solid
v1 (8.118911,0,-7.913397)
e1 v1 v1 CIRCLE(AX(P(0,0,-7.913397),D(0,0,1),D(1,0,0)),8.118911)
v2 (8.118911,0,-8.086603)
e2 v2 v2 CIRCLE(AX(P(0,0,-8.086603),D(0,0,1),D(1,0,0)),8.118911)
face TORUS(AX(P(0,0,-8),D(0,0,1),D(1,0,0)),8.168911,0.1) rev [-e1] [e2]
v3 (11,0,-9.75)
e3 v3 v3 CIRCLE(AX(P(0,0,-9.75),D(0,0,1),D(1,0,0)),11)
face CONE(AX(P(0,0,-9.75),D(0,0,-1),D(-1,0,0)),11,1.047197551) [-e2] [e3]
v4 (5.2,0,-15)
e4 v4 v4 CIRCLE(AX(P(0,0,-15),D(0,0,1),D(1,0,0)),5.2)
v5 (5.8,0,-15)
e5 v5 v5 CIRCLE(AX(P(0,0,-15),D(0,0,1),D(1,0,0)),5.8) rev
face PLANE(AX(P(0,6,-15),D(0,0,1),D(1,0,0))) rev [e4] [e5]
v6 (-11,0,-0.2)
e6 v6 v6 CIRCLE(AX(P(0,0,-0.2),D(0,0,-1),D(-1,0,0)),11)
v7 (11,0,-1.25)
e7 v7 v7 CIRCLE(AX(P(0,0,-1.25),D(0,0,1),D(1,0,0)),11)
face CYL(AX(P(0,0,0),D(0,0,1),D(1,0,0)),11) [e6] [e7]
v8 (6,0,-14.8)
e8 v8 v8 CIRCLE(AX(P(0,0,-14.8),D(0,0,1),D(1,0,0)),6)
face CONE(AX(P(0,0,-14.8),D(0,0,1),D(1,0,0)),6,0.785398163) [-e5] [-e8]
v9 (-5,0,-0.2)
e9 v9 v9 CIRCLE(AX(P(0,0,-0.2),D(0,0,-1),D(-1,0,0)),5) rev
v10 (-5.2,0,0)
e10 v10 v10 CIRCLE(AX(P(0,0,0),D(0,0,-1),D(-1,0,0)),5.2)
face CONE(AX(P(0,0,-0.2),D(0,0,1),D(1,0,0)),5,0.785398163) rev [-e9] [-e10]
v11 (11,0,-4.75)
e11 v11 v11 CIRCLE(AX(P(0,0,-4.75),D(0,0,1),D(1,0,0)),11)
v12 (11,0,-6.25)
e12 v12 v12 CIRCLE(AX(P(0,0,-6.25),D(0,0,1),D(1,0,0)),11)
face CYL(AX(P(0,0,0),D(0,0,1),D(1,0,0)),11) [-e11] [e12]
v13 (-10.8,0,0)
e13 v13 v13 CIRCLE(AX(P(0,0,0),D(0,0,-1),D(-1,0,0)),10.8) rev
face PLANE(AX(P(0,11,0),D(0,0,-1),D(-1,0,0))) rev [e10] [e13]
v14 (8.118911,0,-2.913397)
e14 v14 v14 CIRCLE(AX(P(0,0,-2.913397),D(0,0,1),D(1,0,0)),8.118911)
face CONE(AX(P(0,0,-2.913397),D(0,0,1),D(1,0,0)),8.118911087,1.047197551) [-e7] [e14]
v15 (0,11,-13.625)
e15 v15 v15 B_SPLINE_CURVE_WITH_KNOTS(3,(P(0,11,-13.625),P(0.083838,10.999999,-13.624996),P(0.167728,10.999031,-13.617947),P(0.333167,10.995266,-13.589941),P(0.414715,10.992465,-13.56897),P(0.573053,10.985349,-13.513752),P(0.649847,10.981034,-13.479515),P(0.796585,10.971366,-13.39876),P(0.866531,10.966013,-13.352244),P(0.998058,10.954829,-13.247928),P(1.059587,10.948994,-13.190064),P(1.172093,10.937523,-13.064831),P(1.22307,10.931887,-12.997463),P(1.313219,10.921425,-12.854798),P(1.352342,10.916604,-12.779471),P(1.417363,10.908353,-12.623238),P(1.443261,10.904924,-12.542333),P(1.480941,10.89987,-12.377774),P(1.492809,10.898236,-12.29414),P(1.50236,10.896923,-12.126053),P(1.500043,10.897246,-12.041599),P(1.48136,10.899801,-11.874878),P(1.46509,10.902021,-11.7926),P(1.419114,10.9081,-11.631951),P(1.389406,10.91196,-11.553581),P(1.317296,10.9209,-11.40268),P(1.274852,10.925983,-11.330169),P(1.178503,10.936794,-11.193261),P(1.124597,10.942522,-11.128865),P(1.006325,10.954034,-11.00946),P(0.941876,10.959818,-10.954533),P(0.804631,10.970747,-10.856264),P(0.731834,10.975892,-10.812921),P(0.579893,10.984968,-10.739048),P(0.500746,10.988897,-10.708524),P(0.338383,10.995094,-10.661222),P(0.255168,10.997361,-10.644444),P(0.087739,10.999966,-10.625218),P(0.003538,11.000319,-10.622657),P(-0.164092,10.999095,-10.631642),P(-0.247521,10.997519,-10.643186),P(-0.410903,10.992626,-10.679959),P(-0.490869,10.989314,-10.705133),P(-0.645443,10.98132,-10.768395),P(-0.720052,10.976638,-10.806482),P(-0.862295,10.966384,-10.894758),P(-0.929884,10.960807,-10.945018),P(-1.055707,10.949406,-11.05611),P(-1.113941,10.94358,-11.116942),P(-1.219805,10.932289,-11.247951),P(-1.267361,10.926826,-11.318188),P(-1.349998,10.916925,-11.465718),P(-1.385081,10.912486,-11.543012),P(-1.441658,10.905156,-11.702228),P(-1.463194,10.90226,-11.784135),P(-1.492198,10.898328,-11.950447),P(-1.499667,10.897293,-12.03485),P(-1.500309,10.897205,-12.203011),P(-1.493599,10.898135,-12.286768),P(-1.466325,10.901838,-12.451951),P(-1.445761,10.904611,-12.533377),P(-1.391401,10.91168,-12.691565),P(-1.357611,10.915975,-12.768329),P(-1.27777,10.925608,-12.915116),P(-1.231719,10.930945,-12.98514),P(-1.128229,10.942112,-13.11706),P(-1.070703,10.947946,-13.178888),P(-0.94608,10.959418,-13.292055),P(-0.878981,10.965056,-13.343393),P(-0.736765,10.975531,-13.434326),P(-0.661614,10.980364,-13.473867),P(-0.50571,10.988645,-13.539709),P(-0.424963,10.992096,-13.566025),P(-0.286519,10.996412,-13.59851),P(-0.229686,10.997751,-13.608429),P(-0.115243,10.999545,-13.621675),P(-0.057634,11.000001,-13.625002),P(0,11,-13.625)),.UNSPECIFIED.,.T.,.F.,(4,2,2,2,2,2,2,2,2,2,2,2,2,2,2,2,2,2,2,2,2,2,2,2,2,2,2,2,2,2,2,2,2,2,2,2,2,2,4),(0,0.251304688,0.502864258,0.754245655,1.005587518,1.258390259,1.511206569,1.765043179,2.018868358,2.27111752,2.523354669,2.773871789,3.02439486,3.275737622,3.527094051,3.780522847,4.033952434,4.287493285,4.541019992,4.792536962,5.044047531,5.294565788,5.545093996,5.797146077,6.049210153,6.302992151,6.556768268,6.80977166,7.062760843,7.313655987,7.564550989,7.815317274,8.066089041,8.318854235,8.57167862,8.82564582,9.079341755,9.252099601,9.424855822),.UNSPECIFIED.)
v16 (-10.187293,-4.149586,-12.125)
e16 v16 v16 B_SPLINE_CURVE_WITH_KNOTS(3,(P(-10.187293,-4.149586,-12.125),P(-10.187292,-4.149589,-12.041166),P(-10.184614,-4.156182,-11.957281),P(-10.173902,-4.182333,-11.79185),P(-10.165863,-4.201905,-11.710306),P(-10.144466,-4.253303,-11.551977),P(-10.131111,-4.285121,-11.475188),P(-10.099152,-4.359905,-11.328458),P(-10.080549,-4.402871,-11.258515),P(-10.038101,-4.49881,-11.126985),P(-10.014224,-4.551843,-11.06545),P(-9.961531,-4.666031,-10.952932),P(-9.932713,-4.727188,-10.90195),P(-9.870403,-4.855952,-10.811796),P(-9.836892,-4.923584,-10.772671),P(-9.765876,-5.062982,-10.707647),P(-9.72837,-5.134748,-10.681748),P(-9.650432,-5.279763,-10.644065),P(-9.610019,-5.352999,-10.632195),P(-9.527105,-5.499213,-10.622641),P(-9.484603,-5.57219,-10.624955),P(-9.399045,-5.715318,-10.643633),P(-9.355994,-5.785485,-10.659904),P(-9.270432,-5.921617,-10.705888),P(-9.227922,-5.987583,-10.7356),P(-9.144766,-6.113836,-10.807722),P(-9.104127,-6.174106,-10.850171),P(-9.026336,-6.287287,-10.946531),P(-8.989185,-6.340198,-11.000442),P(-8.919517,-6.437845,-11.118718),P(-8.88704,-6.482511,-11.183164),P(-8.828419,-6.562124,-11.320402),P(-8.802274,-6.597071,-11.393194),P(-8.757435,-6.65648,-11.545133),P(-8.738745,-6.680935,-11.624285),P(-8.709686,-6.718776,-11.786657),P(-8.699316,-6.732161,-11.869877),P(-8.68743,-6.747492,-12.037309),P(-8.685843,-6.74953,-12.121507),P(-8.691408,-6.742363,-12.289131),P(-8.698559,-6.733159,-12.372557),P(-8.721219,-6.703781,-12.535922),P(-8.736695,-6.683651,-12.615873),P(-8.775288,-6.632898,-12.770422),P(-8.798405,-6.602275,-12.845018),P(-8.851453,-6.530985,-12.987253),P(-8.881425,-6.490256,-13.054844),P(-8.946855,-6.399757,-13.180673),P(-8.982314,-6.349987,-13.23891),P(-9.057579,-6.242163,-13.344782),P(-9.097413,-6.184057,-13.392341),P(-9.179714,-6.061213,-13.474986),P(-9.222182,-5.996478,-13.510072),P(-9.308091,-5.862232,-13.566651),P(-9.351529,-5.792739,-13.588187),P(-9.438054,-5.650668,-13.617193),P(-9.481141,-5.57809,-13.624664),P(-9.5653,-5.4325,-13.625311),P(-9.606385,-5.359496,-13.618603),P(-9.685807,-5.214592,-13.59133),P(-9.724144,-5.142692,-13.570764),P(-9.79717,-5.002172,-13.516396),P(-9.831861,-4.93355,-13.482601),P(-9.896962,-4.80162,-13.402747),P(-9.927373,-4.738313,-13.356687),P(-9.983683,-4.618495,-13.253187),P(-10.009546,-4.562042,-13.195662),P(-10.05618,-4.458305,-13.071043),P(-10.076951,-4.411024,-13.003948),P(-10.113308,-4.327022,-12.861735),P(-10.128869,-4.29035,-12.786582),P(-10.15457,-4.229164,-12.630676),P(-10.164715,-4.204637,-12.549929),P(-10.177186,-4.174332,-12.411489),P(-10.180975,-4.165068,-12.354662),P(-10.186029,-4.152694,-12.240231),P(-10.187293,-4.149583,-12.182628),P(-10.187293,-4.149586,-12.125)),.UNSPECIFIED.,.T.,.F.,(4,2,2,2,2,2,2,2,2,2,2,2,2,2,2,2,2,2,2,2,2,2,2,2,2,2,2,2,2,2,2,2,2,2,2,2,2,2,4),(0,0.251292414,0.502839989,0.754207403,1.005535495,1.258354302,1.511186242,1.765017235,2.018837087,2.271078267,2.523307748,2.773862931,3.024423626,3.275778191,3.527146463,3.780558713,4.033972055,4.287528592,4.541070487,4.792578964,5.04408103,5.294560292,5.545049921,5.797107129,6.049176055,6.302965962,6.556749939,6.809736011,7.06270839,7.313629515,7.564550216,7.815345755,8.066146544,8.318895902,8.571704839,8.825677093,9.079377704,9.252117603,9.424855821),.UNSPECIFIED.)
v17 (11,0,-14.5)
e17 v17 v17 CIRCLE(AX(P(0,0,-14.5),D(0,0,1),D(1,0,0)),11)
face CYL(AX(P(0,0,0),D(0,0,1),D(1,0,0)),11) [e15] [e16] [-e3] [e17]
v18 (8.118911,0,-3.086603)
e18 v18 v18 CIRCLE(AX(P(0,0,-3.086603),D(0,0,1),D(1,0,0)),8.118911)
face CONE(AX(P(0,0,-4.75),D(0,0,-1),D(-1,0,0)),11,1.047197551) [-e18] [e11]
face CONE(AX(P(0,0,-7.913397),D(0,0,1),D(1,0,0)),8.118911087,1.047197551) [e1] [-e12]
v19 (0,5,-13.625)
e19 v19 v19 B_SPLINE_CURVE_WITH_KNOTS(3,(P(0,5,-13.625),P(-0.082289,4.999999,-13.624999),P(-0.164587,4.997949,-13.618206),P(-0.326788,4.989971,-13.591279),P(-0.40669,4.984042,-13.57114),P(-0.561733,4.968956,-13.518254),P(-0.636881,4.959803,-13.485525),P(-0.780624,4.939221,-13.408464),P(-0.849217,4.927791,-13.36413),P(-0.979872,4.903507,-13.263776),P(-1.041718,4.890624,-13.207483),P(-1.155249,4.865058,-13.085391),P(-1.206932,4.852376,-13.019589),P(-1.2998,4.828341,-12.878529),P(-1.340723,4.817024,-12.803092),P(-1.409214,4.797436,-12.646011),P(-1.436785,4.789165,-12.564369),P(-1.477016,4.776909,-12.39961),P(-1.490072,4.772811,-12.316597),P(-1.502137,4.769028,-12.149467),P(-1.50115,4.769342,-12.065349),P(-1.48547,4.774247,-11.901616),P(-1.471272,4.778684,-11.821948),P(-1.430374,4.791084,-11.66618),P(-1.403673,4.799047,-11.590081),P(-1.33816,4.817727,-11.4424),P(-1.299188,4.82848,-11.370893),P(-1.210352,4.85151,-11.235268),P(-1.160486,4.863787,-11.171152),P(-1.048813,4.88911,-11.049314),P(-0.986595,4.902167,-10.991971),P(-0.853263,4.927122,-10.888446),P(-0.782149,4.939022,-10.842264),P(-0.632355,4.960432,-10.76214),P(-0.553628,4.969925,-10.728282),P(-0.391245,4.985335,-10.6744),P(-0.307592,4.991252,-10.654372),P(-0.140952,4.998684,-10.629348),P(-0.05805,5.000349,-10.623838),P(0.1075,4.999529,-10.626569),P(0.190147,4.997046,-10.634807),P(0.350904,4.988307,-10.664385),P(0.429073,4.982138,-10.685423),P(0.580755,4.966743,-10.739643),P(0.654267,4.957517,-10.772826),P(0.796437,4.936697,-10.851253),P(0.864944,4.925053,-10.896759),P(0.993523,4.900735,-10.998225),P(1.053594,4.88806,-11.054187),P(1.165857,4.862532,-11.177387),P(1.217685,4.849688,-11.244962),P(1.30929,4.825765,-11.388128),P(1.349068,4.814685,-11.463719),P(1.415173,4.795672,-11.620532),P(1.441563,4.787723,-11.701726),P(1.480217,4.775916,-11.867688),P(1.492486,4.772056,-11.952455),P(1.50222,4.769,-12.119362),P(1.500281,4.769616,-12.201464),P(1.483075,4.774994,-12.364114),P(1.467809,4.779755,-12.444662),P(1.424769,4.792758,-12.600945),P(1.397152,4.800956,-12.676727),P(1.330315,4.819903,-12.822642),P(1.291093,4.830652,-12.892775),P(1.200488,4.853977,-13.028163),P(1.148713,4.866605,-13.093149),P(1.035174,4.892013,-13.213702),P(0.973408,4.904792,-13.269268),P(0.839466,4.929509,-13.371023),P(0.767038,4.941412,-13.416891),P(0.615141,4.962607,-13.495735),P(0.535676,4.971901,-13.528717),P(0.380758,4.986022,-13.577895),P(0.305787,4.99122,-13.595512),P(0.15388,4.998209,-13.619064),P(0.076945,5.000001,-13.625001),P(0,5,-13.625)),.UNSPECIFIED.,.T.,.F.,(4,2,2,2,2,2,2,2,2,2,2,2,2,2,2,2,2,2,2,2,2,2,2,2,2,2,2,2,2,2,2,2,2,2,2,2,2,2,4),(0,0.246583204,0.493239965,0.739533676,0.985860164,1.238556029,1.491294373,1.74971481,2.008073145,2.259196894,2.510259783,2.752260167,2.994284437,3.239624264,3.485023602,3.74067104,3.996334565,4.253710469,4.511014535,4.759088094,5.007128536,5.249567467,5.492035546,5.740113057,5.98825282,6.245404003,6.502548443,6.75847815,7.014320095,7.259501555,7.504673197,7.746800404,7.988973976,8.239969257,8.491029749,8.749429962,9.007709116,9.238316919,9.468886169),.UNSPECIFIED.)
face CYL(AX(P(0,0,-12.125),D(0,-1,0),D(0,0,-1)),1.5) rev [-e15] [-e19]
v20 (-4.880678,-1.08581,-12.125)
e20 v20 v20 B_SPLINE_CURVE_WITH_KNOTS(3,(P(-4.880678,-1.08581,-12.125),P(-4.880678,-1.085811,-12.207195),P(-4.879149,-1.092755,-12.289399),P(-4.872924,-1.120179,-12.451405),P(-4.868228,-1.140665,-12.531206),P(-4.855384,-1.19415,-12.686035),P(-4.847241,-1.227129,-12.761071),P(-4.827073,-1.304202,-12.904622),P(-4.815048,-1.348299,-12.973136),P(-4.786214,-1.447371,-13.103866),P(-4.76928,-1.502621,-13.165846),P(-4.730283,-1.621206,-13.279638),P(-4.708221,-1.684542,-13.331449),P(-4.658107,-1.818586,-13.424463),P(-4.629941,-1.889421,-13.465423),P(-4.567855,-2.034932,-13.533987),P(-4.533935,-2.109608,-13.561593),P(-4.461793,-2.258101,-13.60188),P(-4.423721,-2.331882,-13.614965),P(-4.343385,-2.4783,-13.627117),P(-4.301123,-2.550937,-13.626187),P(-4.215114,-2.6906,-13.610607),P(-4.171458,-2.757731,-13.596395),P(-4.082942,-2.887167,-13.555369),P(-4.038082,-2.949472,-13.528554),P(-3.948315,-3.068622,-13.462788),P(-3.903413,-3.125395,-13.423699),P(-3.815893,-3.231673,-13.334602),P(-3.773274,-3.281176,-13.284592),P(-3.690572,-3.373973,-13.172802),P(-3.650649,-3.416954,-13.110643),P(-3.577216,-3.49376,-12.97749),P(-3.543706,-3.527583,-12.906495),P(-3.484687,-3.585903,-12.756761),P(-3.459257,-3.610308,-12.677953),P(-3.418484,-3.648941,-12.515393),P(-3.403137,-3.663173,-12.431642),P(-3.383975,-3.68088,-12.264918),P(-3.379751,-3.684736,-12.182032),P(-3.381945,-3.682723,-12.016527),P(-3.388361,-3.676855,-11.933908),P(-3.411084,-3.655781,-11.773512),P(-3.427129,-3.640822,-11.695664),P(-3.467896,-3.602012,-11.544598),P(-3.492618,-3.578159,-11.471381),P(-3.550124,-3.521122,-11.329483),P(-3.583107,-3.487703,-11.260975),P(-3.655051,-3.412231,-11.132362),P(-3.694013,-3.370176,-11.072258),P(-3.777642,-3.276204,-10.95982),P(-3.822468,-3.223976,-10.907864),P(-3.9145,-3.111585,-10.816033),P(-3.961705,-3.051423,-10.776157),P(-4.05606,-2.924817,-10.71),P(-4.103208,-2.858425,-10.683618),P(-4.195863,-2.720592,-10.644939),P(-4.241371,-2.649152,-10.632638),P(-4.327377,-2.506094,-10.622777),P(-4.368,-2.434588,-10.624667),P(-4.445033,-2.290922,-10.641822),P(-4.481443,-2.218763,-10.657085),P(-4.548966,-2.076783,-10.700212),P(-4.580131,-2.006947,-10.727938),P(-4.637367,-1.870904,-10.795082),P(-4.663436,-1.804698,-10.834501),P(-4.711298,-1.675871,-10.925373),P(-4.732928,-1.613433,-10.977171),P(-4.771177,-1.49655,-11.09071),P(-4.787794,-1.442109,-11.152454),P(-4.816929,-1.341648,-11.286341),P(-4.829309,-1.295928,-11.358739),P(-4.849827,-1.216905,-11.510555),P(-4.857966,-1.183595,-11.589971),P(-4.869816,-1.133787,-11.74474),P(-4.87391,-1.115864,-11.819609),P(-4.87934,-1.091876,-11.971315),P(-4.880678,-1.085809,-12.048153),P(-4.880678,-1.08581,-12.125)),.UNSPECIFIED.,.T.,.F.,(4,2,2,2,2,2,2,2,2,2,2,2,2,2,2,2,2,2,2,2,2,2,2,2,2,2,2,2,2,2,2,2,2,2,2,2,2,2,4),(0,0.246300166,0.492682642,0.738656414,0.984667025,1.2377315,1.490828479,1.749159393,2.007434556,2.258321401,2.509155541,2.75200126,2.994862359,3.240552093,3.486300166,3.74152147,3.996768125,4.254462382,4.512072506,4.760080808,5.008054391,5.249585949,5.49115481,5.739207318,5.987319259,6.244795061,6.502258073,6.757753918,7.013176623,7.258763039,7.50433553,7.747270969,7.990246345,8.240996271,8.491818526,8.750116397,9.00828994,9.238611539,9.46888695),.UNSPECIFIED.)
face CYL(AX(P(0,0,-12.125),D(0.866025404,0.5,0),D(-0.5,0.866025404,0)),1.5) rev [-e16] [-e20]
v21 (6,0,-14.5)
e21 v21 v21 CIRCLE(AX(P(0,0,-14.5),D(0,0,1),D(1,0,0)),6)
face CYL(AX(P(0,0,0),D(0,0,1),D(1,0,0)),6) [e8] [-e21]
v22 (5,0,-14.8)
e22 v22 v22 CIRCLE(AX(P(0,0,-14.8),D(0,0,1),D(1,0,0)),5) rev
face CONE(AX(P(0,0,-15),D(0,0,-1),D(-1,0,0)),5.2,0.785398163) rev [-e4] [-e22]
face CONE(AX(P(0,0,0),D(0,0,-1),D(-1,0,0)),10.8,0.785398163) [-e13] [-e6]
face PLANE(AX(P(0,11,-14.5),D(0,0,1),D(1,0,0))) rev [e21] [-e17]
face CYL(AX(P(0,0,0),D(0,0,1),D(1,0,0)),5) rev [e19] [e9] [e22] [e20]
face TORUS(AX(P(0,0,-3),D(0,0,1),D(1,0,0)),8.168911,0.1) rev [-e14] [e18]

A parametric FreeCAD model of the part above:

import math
import FreeCAD as App
import Part
import Sketcher
from FreeCAD import Vector
Q = App.Units.Quantity


def edges_at(feature, points):
    """Names of the edges that pass closest to the given points."""
    edges = feature.Shape.Edges
    near = lambda p: min(range(len(edges)), key=lambda i: edges[i].distToShape(Part.Vertex(*p))[0])
    return sorted({f"Edge{near(p) + 1}" for p in points})

doc = App.newDocument("Part")
body = doc.addObject("PartDesign::Body", "Body")

# Sketch on YZ plane
sketch1 = body.newObject("Sketcher::SketchObject", "Sketch")
sketch1.AttachmentSupport = (doc.getObject("YZ_Plane"), [""])
sketch1.MapMode = "FlatFace"
sketch1.addGeometry(Part.LineSegment(Vector(5, 0, 0), Vector(5, -15, 0)), False)
sketch1.addGeometry(Part.LineSegment(Vector(5, -15, 0), Vector(6, -15, 0)), False)
sketch1.addGeometry(Part.LineSegment(Vector(6, -15, 0), Vector(6, -14.5, 0)), False)
sketch1.addGeometry(Part.LineSegment(Vector(6, -14.5, 0), Vector(11, -14.5, 0)), False)
sketch1.addGeometry(Part.LineSegment(Vector(11, -14.5, 0), Vector(11, -9.75, 0)), False)
sketch1.addGeometry(Part.LineSegment(Vector(11, -9.75, 0), Vector(8.12, -8.09, 0)), False)
sketch1.addGeometry(Part.ArcOfCircle(Part.Circle(Vector(8.17, -8, 0), Vector(0, 0, 1), 0.1), math.radians(120), math.radians(240)), False)
sketch1.addGeometry(Part.LineSegment(Vector(8.12, -7.91, 0), Vector(11, -6.25, 0)), False)
sketch1.addGeometry(Part.LineSegment(Vector(11, -6.25, 0), Vector(11, -4.75, 0)), False)
sketch1.addGeometry(Part.LineSegment(Vector(11, -4.75, 0), Vector(8.12, -3.09, 0)), False)
sketch1.addGeometry(Part.ArcOfCircle(Part.Circle(Vector(8.17, -3, 0), Vector(0, 0, 1), 0.1), math.radians(120), math.radians(240)), False)
sketch1.addGeometry(Part.LineSegment(Vector(8.12, -2.91, 0), Vector(11, -1.25, 0)), False)
sketch1.addGeometry(Part.LineSegment(Vector(11, -1.25, 0), Vector(11, 0, 0)), False)
sketch1.addGeometry(Part.LineSegment(Vector(11, 0, 0), Vector(5, 0, 0)), False)
sketch1.addConstraint(Sketcher.Constraint("Coincident", 0, 2, 1, 1))
sketch1.addConstraint(Sketcher.Constraint("Coincident", 1, 2, 2, 1))
sketch1.addConstraint(Sketcher.Constraint("Coincident", 2, 2, 3, 1))
sketch1.addConstraint(Sketcher.Constraint("Coincident", 3, 2, 4, 1))
sketch1.addConstraint(Sketcher.Constraint("Coincident", 4, 2, 5, 1))
sketch1.addConstraint(Sketcher.Constraint("Tangent", 5, 2, 6, 2))
sketch1.addConstraint(Sketcher.Constraint("Tangent", 6, 1, 7, 1))
sketch1.addConstraint(Sketcher.Constraint("Coincident", 7, 2, 8, 1))
sketch1.addConstraint(Sketcher.Constraint("Coincident", 8, 2, 9, 1))
sketch1.addConstraint(Sketcher.Constraint("Tangent", 9, 2, 10, 2))
sketch1.addConstraint(Sketcher.Constraint("Tangent", 10, 1, 11, 1))
sketch1.addConstraint(Sketcher.Constraint("Coincident", 11, 2, 12, 1))
sketch1.addConstraint(Sketcher.Constraint("Coincident", 12, 2, 13, 1))
sketch1.addConstraint(Sketcher.Constraint("Coincident", 13, 2, 0, 1))
sketch1.addConstraint(Sketcher.Constraint("Vertical", 0))
sketch1.addConstraint(Sketcher.Constraint("Horizontal", 1))
sketch1.addConstraint(Sketcher.Constraint("Vertical", 2))
sketch1.addConstraint(Sketcher.Constraint("Horizontal", 3))
sketch1.addConstraint(Sketcher.Constraint("Vertical", 4))
sketch1.addConstraint(Sketcher.Constraint("Vertical", 8))
sketch1.addConstraint(Sketcher.Constraint("Vertical", 12))
sketch1.addConstraint(Sketcher.Constraint("Horizontal", 13))
sketch1.addConstraint(Sketcher.Constraint("Equal", 6, 10))
sketch1.addConstraint(Sketcher.Constraint("PointOnObject", 12, 2, -1))
sketch1.addConstraint(Sketcher.Constraint("Parallel", 5, 9))
sketch1.addConstraint(Sketcher.Constraint("Parallel", 7, 11))
sketch1.addConstraint(Sketcher.Constraint("Vertical", 6, 3, 10, 3))
sketch1.addConstraint(Sketcher.Constraint("Vertical", 5, 2, 6, 1))
sketch1.addConstraint(Sketcher.Constraint("Vertical", 4, 2, 7, 2))
sketch1.addConstraint(Sketcher.Constraint("Vertical", 8, 2, 11, 2))
sketch1.addConstraint(Sketcher.Constraint("Radius", 6, 0.1))
sketch1.addConstraint(Sketcher.Constraint("DistanceX", 1, 1, 1, 2, 1.0))
sketch1.addConstraint(Sketcher.Constraint("DistanceX", 3, 1, 3, 2, 5.0))
sketch1.addConstraint(Sketcher.Constraint("DistanceY", 0, 2, 0, 1, 15.0))
sketch1.addConstraint(Sketcher.Constraint("Angle", 5, Q("150 deg")))
sketch1.addConstraint(Sketcher.Constraint("DistanceY", 2, 1, 2, 2, 0.5))
sketch1.addConstraint(Sketcher.Constraint("DistanceY", 8, 1, 8, 2, 1.5))
sketch1.addConstraint(Sketcher.Constraint("DistanceY", 6, 3, -1, 1, 8.0))
sketch1.addConstraint(Sketcher.Constraint("DistanceY", 10, 3, -1, 1, 3.0))
sketch1.addConstraint(Sketcher.Constraint("DistanceX", -1, 1, 0, 2, 5.0))
revolution = body.newObject("PartDesign::Revolution", "Revolution")
revolution.Profile = sketch1
revolution.ReferenceAxis = (sketch1, ["V_Axis"])
revolution.Angle = 360

# Sketch on YZ plane
sketch2 = body.newObject("Sketcher::SketchObject", "Sketch001")
sketch2.AttachmentSupport = (doc.getObject("YZ_Plane"), [""])
sketch2.MapMode = "FlatFace"
sketch2.addGeometry(Part.LineSegment(Vector(15, -12.1, 0), Vector(0, -12.1, 0)), False)
sketch2.addGeometry(Part.LineSegment(Vector(0, -12.1, 0), Vector(0, -13.6, 0)), False)
sketch2.addGeometry(Part.LineSegment(Vector(0, -13.6, 0), Vector(15, -13.6, 0)), False)
sketch2.addGeometry(Part.LineSegment(Vector(15, -13.6, 0), Vector(15, -12.1, 0)), False)
sketch2.addGeometry(Part.LineSegment(Vector(0, -12.1, 0), Vector(15, -12.1, 0)), True)  # axis
sketch2.addConstraint(Sketcher.Constraint("Coincident", 0, 2, 1, 1))
sketch2.addConstraint(Sketcher.Constraint("Coincident", 1, 2, 2, 1))
sketch2.addConstraint(Sketcher.Constraint("Coincident", 2, 2, 3, 1))
sketch2.addConstraint(Sketcher.Constraint("Coincident", 3, 2, 0, 1))
sketch2.addConstraint(Sketcher.Constraint("Horizontal", 0))
sketch2.addConstraint(Sketcher.Constraint("Vertical", 1))
sketch2.addConstraint(Sketcher.Constraint("Horizontal", 2))
sketch2.addConstraint(Sketcher.Constraint("Vertical", 3))
sketch2.addConstraint(Sketcher.Constraint("Horizontal", 4))
sketch2.addConstraint(Sketcher.Constraint("Coincident", 4, 1, 0, 2))
sketch2.addConstraint(Sketcher.Constraint("PointOnObject", 0, 2, -2))
sketch2.addConstraint(Sketcher.Constraint("Vertical", 2, 2, 4, 2))
sketch2.addConstraint(Sketcher.Constraint("DistanceY", 1, 2, 1, 1, 1.5))
sketch2.addConstraint(Sketcher.Constraint("DistanceY", 0, 2, -1, 1, 12.125))
sketch2.addConstraint(Sketcher.Constraint("DistanceX", 0, 2, 0, 1, 15.026279))
groove = body.newObject("PartDesign::Groove", "Groove")
groove.Profile = sketch2
groove.ReferenceAxis = (sketch2, ["Axis0"])
groove.Angle = 360
doc.recompute()

polarpattern = body.newObject("PartDesign::PolarPattern", "PolarPattern")
polarpattern.Originals = [groove]
polarpattern.Axis = (doc.getObject("Z_Axis"), [""])
polarpattern.Angle = 120
polarpattern.Occurrences = 2
body.Tip = polarpattern
doc.recompute()

chamfer = body.newObject("PartDesign::Chamfer", "Chamfer")
chamfer.Base = (polarpattern, edges_at(polarpattern, [
    (-6, 0, -15),
    (-11, 0, 0),
    (-5, 0, 0),
    (-5, 0, -15),
]))
chamfer.Size = 0.2

doc.recompute()
